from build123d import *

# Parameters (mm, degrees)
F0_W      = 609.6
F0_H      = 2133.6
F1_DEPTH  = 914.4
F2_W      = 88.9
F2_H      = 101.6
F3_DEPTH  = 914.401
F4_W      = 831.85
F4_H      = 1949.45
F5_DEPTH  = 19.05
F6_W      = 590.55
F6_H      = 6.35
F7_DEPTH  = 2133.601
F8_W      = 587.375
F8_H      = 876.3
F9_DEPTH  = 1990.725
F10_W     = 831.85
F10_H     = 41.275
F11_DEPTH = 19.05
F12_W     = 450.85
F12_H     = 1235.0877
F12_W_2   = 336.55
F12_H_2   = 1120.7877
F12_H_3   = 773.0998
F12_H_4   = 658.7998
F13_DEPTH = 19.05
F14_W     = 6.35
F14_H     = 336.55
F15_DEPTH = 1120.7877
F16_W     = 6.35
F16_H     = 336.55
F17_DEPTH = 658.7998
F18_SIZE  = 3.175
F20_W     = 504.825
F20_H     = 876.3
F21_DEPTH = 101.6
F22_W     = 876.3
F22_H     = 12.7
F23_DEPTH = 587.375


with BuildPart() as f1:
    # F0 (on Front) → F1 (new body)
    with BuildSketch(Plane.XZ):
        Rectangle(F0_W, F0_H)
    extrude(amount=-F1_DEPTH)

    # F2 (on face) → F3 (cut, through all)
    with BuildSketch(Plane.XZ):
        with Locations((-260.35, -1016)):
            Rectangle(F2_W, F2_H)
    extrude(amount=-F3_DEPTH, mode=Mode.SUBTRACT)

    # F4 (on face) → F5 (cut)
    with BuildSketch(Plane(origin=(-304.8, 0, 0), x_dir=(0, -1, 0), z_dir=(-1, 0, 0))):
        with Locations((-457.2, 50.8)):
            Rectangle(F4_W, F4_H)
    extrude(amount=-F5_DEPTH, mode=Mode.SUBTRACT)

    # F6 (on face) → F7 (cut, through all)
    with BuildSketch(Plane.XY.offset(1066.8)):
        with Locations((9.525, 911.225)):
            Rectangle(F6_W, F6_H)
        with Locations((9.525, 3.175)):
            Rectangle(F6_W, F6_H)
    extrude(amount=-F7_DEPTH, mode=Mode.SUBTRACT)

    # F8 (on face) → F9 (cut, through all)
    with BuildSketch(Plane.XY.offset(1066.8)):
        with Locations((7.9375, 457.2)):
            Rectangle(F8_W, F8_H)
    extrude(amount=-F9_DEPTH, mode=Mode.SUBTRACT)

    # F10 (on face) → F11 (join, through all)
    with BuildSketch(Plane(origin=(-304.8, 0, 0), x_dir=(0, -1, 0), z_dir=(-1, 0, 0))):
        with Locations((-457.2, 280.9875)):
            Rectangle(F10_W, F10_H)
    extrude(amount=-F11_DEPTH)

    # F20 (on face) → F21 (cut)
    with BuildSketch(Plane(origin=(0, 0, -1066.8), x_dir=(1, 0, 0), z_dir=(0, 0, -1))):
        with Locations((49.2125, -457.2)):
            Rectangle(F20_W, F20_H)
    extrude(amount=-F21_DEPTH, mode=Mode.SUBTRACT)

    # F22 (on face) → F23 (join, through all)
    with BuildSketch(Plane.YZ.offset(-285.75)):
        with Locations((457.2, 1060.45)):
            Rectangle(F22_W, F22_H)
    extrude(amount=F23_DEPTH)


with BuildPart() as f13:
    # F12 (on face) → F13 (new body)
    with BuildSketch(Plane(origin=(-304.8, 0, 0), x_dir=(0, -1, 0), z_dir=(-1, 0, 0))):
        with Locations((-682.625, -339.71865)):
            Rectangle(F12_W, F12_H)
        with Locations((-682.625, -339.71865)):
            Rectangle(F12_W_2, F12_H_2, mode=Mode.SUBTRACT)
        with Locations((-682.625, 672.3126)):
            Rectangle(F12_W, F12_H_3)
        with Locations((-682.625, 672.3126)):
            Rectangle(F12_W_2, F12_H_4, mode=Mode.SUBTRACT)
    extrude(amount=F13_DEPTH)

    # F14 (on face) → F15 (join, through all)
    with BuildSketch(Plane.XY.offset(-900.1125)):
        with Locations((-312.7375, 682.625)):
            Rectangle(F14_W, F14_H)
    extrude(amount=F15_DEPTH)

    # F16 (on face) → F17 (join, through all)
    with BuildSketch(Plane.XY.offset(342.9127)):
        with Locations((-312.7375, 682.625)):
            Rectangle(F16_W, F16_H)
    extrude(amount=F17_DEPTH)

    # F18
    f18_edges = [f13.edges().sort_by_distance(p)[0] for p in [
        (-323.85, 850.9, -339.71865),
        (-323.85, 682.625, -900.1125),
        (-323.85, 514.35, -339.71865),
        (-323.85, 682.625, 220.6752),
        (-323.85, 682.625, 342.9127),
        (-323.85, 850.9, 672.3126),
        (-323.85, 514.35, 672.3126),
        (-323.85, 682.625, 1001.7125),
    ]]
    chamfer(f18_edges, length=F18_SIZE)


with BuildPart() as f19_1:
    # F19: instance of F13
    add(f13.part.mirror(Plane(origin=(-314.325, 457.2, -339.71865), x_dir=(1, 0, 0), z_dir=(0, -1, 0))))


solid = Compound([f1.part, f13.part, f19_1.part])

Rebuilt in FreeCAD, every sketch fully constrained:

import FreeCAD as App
import Part
import Sketcher
from FreeCAD import Vector
Q = App.Units.Quantity


def edges_at(feature, points):
    """Names of the edges that pass closest to the given points."""
    edges = feature.Shape.Edges
    near = lambda p: min(range(len(edges)), key=lambda i: edges[i].distToShape(Part.Vertex(*p))[0])
    return sorted({f"Edge{near(p) + 1}" for p in points})

doc = App.newDocument("Part")
body = doc.addObject("PartDesign::Body", "Body")

# Sketch on XZ plane
sketch1 = doc.addObject("Sketcher::SketchObject", "Sketch")
body.addObject(sketch1)
sketch1.AttachmentSupport = (doc.XZ_Plane, [""])
sketch1.MapMode = "FlatFace"
sketch1.addGeometry([
    Part.LineSegment(Vector(-304.8, 1066.8, 0), Vector(-304.8, -1066.8, 0)),
    Part.LineSegment(Vector(-304.8, -1066.8, 0), Vector(304.8, -1066.8, 0)),
    Part.LineSegment(Vector(304.8, -1066.8, 0), Vector(304.8, 1066.8, 0)),
    Part.LineSegment(Vector(304.8, 1066.8, 0), Vector(-304.8, 1066.8, 0)),
], False)
sketch1.addConstraint([
    Sketcher.Constraint("Coincident", 0, 2, 1, 1),
    Sketcher.Constraint("Coincident", 1, 2, 2, 1),
    Sketcher.Constraint("Coincident", 2, 2, 3, 1),
    Sketcher.Constraint("Coincident", 3, 2, 0, 1),
    Sketcher.Constraint("Vertical", 0),
    Sketcher.Constraint("Horizontal", 1),
    Sketcher.Constraint("Vertical", 2),
    Sketcher.Constraint("Horizontal", 3),
    Sketcher.Constraint("Symmetric", 0, 2, 2, 2, -1, 1),
    Sketcher.Constraint("DistanceX", 1, 1, 1, 2, Q("24 in")),
    Sketcher.Constraint("DistanceY", 0, 2, 0, 1, Q("84 in")),
])
pad1 = doc.addObject("PartDesign::Pad", "Pad")
body.addObject(pad1)
pad1.Profile = sketch1
pad1.Length = Q("36 in")
pad1.Reversed = True

# Sketch on XZ plane
sketch2 = doc.addObject("Sketcher::SketchObject", "Sketch001")
body.addObject(sketch2)
sketch2.AttachmentSupport = (doc.XZ_Plane, [""])
sketch2.MapMode = "FlatFace"
sketch2.addGeometry([
    Part.LineSegment(Vector(-304.8, -965.2, 0), Vector(-304.8, -1066.8, 0)),
    Part.LineSegment(Vector(-304.8, -1066.8, 0), Vector(-215.9, -1066.8, 0)),
    Part.LineSegment(Vector(-215.9, -1066.8, 0), Vector(-215.9, -965.2, 0)),
    Part.LineSegment(Vector(-215.9, -965.2, 0), Vector(-304.8, -965.2, 0)),
], False)
sketch2.addConstraint([
    Sketcher.Constraint("Coincident", 0, 2, 1, 1),
    Sketcher.Constraint("Coincident", 1, 2, 2, 1),
    Sketcher.Constraint("Coincident", 2, 2, 3, 1),
    Sketcher.Constraint("Coincident", 3, 2, 0, 1),
    Sketcher.Constraint("Vertical", 0),
    Sketcher.Constraint("Horizontal", 1),
    Sketcher.Constraint("Vertical", 2),
    Sketcher.Constraint("Horizontal", 3),
    Sketcher.Constraint("DistanceY", 0, 2, 0, 1, Q("4 in")),
    Sketcher.Constraint("DistanceX", 1, 1, 1, 2, Q("3.5 in")),
    Sketcher.Constraint("DistanceX", 0, 2, -1, 1, Q("12 in")),
    Sketcher.Constraint("DistanceY", 0, 2, -1, 1, Q("42 in")),
])
pocket1 = doc.addObject("PartDesign::Pocket", "Pocket")
body.addObject(pocket1)
pocket1.Profile = sketch2
pocket1.Type = "ThroughAll"

# Sketch on YZ plane
sketch3 = doc.addObject("Sketcher::SketchObject", "Sketch002")
body.addObject(sketch3)
sketch3.AttachmentSupport = (doc.YZ_Plane, [""])
sketch3.MapMode = "FlatFace"
sketch3.AttachmentOffset = App.Placement(Vector(0, 0, -12 * 25.4), App.Rotation())
sketch3.addGeometry([
    Part.LineSegment(Vector(873.125, 1025.525, 0), Vector(873.125, -923.925, 0)),
    Part.LineSegment(Vector(873.125, -923.925, 0), Vector(41.275, -923.925, 0)),
    Part.LineSegment(Vector(41.275, -923.925, 0), Vector(41.275, 1025.525, 0)),
    Part.LineSegment(Vector(41.275, 1025.525, 0), Vector(873.125, 1025.525, 0)),
], False)
sketch3.addConstraint([
    Sketcher.Constraint("Coincident", 0, 2, 1, 1),
    Sketcher.Constraint("Coincident", 1, 2, 2, 1),
    Sketcher.Constraint("Coincident", 2, 2, 3, 1),
    Sketcher.Constraint("Coincident", 3, 2, 0, 1),
    Sketcher.Constraint("Vertical", 0),
    Sketcher.Constraint("Horizontal", 1),
    Sketcher.Constraint("Vertical", 2),
    Sketcher.Constraint("Horizontal", 3),
    Sketcher.Constraint("DistanceX", 1, 2, 1, 1, Q("32.75 in")),
    Sketcher.Constraint("DistanceY", 0, 2, 0, 1, Q("76.75 in")),
    Sketcher.Constraint("DistanceX", -1, 1, 0, 2, Q("34.375 in")),
    Sketcher.Constraint("DistanceY", 0, 2, -1, 1, Q("36.375 in")),
])
pocket2 = doc.addObject("PartDesign::Pocket", "Pocket001")
body.addObject(pocket2)
pocket2.Profile = sketch3
pocket2.Length = Q("0.75 in")
pocket2.Reversed = True

# Sketch on XY plane
sketch4 = doc.addObject("Sketcher::SketchObject", "Sketch003")
body.addObject(sketch4)
sketch4.AttachmentSupport = (doc.XY_Plane, [""])
sketch4.MapMode = "FlatFace"
sketch4.AttachmentOffset = App.Placement(Vector(0, 0, 42 * 25.4), App.Rotation())
sketch4.addGeometry([
    Part.LineSegment(Vector(-285.75, 914.4, 0), Vector(-285.75, 908.05, 0)),  # 0
    Part.LineSegment(Vector(-285.75, 908.05, 0), Vector(304.8, 908.05, 0)),  # 1
    Part.LineSegment(Vector(304.8, 908.05, 0), Vector(304.8, 914.4, 0)),  # 2
    Part.LineSegment(Vector(304.8, 914.4, 0), Vector(-285.75, 914.4, 0)),  # 3
    Part.LineSegment(Vector(-285.75, 6.35, 0), Vector(-285.75, 0, 0)),  # 4
    Part.LineSegment(Vector(-285.75, 0, 0), Vector(304.8, 0, 0)),  # 5
    Part.LineSegment(Vector(304.8, 0, 0), Vector(304.8, 6.35, 0)),  # 6
    Part.LineSegment(Vector(304.8, 6.35, 0), Vector(-285.75, 6.35, 0)),  # 7
], False)
sketch4.addConstraint([
    Sketcher.Constraint("Coincident", 0, 2, 1, 1),
    Sketcher.Constraint("Coincident", 1, 2, 2, 1),
    Sketcher.Constraint("Coincident", 2, 2, 3, 1),
    Sketcher.Constraint("Coincident", 3, 2, 0, 1),
    Sketcher.Constraint("Coincident", 4, 2, 5, 1),
    Sketcher.Constraint("Coincident", 5, 2, 6, 1),
    Sketcher.Constraint("Coincident", 6, 2, 7, 1),
    Sketcher.Constraint("Coincident", 7, 2, 4, 1),
    Sketcher.Constraint("Vertical", 0),
    Sketcher.Constraint("Horizontal", 1),
    Sketcher.Constraint("Vertical", 2),
    Sketcher.Constraint("Horizontal", 3),
    Sketcher.Constraint("Vertical", 4),
    Sketcher.Constraint("Horizontal", 5),
    Sketcher.Constraint("Vertical", 6),
    Sketcher.Constraint("Horizontal", 7),
    Sketcher.Constraint("PointOnObject", 4, 2, -1),
    Sketcher.Constraint("Vertical", 3, 2, 4, 2),
    Sketcher.Constraint("Vertical", 2, 2, 5, 2),
    Sketcher.Constraint("Equal", 2, 4),
    Sketcher.Constraint("DistanceX", -1, 1, 1, 2, Q("12 in")),
    Sketcher.Constraint("DistanceY", -1, 1, 2, 2, Q("36 in")),
    Sketcher.Constraint("DistanceX", 1, 1, 1, 2, Q("23.25 in")),
    Sketcher.Constraint("DistanceY", 0, 2, 0, 1, Q("0.25 in")),
])
pocket3 = doc.addObject("PartDesign::Pocket", "Pocket002")
body.addObject(pocket3)
pocket3.Profile = sketch4
pocket3.Type = "ThroughAll"

# Sketch on XY plane
sketch5 = doc.addObject("Sketcher::SketchObject", "Sketch004")
body.addObject(sketch5)
sketch5.AttachmentSupport = (doc.XY_Plane, [""])
sketch5.MapMode = "FlatFace"
sketch5.AttachmentOffset = App.Placement(Vector(0, 0, 42 * 25.4), App.Rotation())
sketch5.addGeometry([
    Part.LineSegment(Vector(-285.75, 895.35, 0), Vector(-285.75, 19.05, 0)),
    Part.LineSegment(Vector(-285.75, 19.05, 0), Vector(301.625, 19.05, 0)),
    Part.LineSegment(Vector(301.625, 19.05, 0), Vector(301.625, 895.35, 0)),
    Part.LineSegment(Vector(301.625, 895.35, 0), Vector(-285.75, 895.35, 0)),
], False)
sketch5.addConstraint([
    Sketcher.Constraint("Coincident", 0, 2, 1, 1),
    Sketcher.Constraint("Coincident", 1, 2, 2, 1),
    Sketcher.Constraint("Coincident", 2, 2, 3, 1),
    Sketcher.Constraint("Coincident", 3, 2, 0, 1),
    Sketcher.Constraint("Vertical", 0),
    Sketcher.Constraint("Horizontal", 1),
    Sketcher.Constraint("Vertical", 2),
    Sketcher.Constraint("Horizontal", 3),
    Sketcher.Constraint("DistanceY", 0, 2, 0, 1, Q("34.5 in")),
    Sketcher.Constraint("DistanceX", 1, 1, 1, 2, Q("23.125 in")),
    Sketcher.Constraint("DistanceX", 0, 2, -1, 1, Q("11.25 in")),
    Sketcher.Constraint("DistanceY", -1, 1, 0, 2, Q("0.75 in")),
])
pocket4 = doc.addObject("PartDesign::Pocket", "Pocket003")
body.addObject(pocket4)
pocket4.Profile = sketch5
pocket4.Length = Q("78.375 in")

# Sketch on YZ plane
sketch6 = doc.addObject("Sketcher::SketchObject", "Sketch005")
body.addObject(sketch6)
sketch6.AttachmentSupport = (doc.YZ_Plane, [""])
sketch6.MapMode = "FlatFace"
sketch6.AttachmentOffset = App.Placement(Vector(0, 0, -12 * 25.4), App.Rotation())
sketch6.addGeometry([
    Part.LineSegment(Vector(873.125, 301.625, 0), Vector(873.125, 260.35, 0)),
    Part.LineSegment(Vector(873.125, 260.35, 0), Vector(41.275, 260.35, 0)),
    Part.LineSegment(Vector(41.275, 260.35, 0), Vector(41.275, 301.625, 0)),
    Part.LineSegment(Vector(41.275, 301.625, 0), Vector(873.125, 301.625, 0)),
], False)
sketch6.addConstraint([
    Sketcher.Constraint("Coincident", 0, 2, 1, 1),
    Sketcher.Constraint("Coincident", 1, 2, 2, 1),
    Sketcher.Constraint("Coincident", 2, 2, 3, 1),
    Sketcher.Constraint("Coincident", 3, 2, 0, 1),
    Sketcher.Constraint("Vertical", 0),
    Sketcher.Constraint("Horizontal", 1),
    Sketcher.Constraint("Vertical", 2),
    Sketcher.Constraint("Horizontal", 3),
    Sketcher.Constraint("DistanceX", 1, 2, 1, 1, Q("32.75 in")),
    Sketcher.Constraint("DistanceY", 0, 2, 0, 1, Q("1.625 in")),
    Sketcher.Constraint("DistanceY", -1, 1, 0, 2, Q("10.25 in")),
    Sketcher.Constraint("DistanceX", -1, 1, 0, 2, Q("34.375 in")),
])
pad2 = doc.addObject("PartDesign::Pad", "Pad001")
body.addObject(pad2)
pad2.Profile = sketch6
pad2.Length = Q("0.75 in")

# Sketch on XY plane
sketch7 = doc.addObject("Sketcher::SketchObject", "Sketch006")
body.addObject(sketch7)
sketch7.AttachmentSupport = (doc.XY_Plane, [""])
sketch7.MapMode = "FlatFace"
sketch7.AttachmentOffset = App.Placement(Vector(0, 0, -42 * 25.4), App.Rotation())
sketch7.addGeometry([
    Part.LineSegment(Vector(-203.2, 19.05, 0), Vector(-203.2, 895.35, 0)),
    Part.LineSegment(Vector(-203.2, 895.35, 0), Vector(301.625, 895.35, 0)),
    Part.LineSegment(Vector(301.625, 895.35, 0), Vector(301.625, 19.05, 0)),
    Part.LineSegment(Vector(301.625, 19.05, 0), Vector(-203.2, 19.05, 0)),
], False)
sketch7.addConstraint([
    Sketcher.Constraint("Coincident", 0, 2, 1, 1),
    Sketcher.Constraint("Coincident", 1, 2, 2, 1),
    Sketcher.Constraint("Coincident", 2, 2, 3, 1),
    Sketcher.Constraint("Coincident", 3, 2, 0, 1),
    Sketcher.Constraint("Vertical", 0),
    Sketcher.Constraint("Horizontal", 1),
    Sketcher.Constraint("Vertical", 2),
    Sketcher.Constraint("Horizontal", 3),
    Sketcher.Constraint("DistanceY", 0, 1, 0, 2, Q("34.5 in")),
    Sketcher.Constraint("DistanceX", 0, 2, -1, 1, Q("8 in")),
    Sketcher.Constraint("DistanceX", 1, 1, 1, 2, Q("19.875 in")),
    Sketcher.Constraint("DistanceY", -1, 1, 0, 2, Q("35.25 in")),
])
pocket5 = doc.addObject("PartDesign::Pocket", "Pocket004")
body.addObject(pocket5)
pocket5.Profile = sketch7
pocket5.Length = Q("4 in")
pocket5.Reversed = True

# Sketch on YZ plane
sketch8 = doc.addObject("Sketcher::SketchObject", "Sketch007")
body.addObject(sketch8)
sketch8.AttachmentSupport = (doc.YZ_Plane, [""])
sketch8.MapMode = "FlatFace"
sketch8.AttachmentOffset = App.Placement(Vector(0, 0, -11.25 * 25.4), App.Rotation())
sketch8.addGeometry([
    Part.LineSegment(Vector(19.05, 1066.8, 0), Vector(19.05, 1054.1, 0)),
    Part.LineSegment(Vector(19.05, 1054.1, 0), Vector(895.35, 1054.1, 0)),
    Part.LineSegment(Vector(895.35, 1054.1, 0), Vector(895.35, 1066.8, 0)),
    Part.LineSegment(Vector(895.35, 1066.8, 0), Vector(19.05, 1066.8, 0)),
], False)
sketch8.addConstraint([
    Sketcher.Constraint("Coincident", 0, 2, 1, 1),
    Sketcher.Constraint("Coincident", 1, 2, 2, 1),
    Sketcher.Constraint("Coincident", 2, 2, 3, 1),
    Sketcher.Constraint("Coincident", 3, 2, 0, 1),
    Sketcher.Constraint("Vertical", 0),
    Sketcher.Constraint("Horizontal", 1),
    Sketcher.Constraint("Vertical", 2),
    Sketcher.Constraint("Horizontal", 3),
    Sketcher.Constraint("DistanceX", 1, 1, 1, 2, Q("34.5 in")),
    Sketcher.Constraint("DistanceY", 0, 2, 0, 1, Q("0.5 in")),
    Sketcher.Constraint("DistanceY", -1, 1, 2, 2, Q("42 in")),
    Sketcher.Constraint("DistanceX", -1, 1, 0, 2, Q("0.75 in")),
])
pad3 = doc.addObject("PartDesign::Pad", "Pad002")
body.addObject(pad3)
pad3.Profile = sketch8
pad3.Type = "UpToLast"
body2 = doc.addObject("PartDesign::Body", "Body001")
body2.AllowCompound = True

# Sketch on YZ plane
sketch9 = doc.addObject("Sketcher::SketchObject", "Sketch008")
body2.addObject(sketch9)
sketch9.AttachmentSupport = (doc.getObject("YZ_Plane001"), [""])
sketch9.MapMode = "FlatFace"
sketch9.AttachmentOffset = App.Placement(Vector(0, 0, -12 * 25.4), App.Rotation())
sketch9.addGeometry([
    Part.LineSegment(Vector(908.05, 277.8252, 0), Vector(908.05, -957.2625, 0)),  # 0
    Part.LineSegment(Vector(908.05, -957.2625, 0), Vector(457.2, -957.2625, 0)),  # 1
    Part.LineSegment(Vector(457.2, -957.2625, 0), Vector(457.2, 277.8252, 0)),  # 2
    Part.LineSegment(Vector(457.2, 277.8252, 0), Vector(908.05, 277.8252, 0)),  # 3
    Part.LineSegment(Vector(514.35, -900.1125, 0), Vector(850.9, -900.1125, 0)),  # 4
    Part.LineSegment(Vector(850.9, -900.1125, 0), Vector(850.9, 220.6752, 0)),  # 5
    Part.LineSegment(Vector(850.9, 220.6752, 0), Vector(514.35, 220.6752, 0)),  # 6
    Part.LineSegment(Vector(514.35, 220.6752, 0), Vector(514.35, -900.1125, 0)),  # 7
    Part.LineSegment(Vector(908.05, 1058.8625, 0), Vector(908.05, 285.7627, 0)),  # 8
    Part.LineSegment(Vector(908.05, 285.7627, 0), Vector(457.2, 285.7627, 0)),  # 9
    Part.LineSegment(Vector(457.2, 285.7627, 0), Vector(457.2, 1058.8625, 0)),  # 10
    Part.LineSegment(Vector(457.2, 1058.8625, 0), Vector(908.05, 1058.8625, 0)),  # 11
    Part.LineSegment(Vector(514.35, 342.9127, 0), Vector(850.9, 342.9127, 0)),  # 12
    Part.LineSegment(Vector(850.9, 342.9127, 0), Vector(850.9, 1001.7125, 0)),  # 13
    Part.LineSegment(Vector(850.9, 1001.7125, 0), Vector(514.35, 1001.7125, 0)),  # 14
    Part.LineSegment(Vector(514.35, 1001.7125, 0), Vector(514.35, 342.9127, 0)),  # 15
], False)
sketch9.addConstraint([
    Sketcher.Constraint("Coincident", 0, 2, 1, 1),
    Sketcher.Constraint("Coincident", 1, 2, 2, 1),
    Sketcher.Constraint("Coincident", 2, 2, 3, 1),
    Sketcher.Constraint("Coincident", 3, 2, 0, 1),
    Sketcher.Constraint("Coincident", 4, 2, 5, 1),
    Sketcher.Constraint("Coincident", 5, 2, 6, 1),
    Sketcher.Constraint("Coincident", 6, 2, 7, 1),
    Sketcher.Constraint("Coincident", 7, 2, 4, 1),
    Sketcher.Constraint("Coincident", 8, 2, 9, 1),
    Sketcher.Constraint("Coincident", 9, 2, 10, 1),
    Sketcher.Constraint("Coincident", 10, 2, 11, 1),
    Sketcher.Constraint("Coincident", 11, 2, 8, 1),
    Sketcher.Constraint("Coincident", 12, 2, 13, 1),
    Sketcher.Constraint("Coincident", 13, 2, 14, 1),
    Sketcher.Constraint("Coincident", 14, 2, 15, 1),
    Sketcher.Constraint("Coincident", 15, 2, 12, 1),
    Sketcher.Constraint("Vertical", 0),
    Sketcher.Constraint("Horizontal", 1),
    Sketcher.Constraint("Vertical", 2),
    Sketcher.Constraint("Horizontal", 3),
    Sketcher.Constraint("Horizontal", 4),
    Sketcher.Constraint("Vertical", 5),
    Sketcher.Constraint("Horizontal", 6),
    Sketcher.Constraint("Vertical", 7),
    Sketcher.Constraint("Vertical", 8),
    Sketcher.Constraint("Horizontal", 9),
    Sketcher.Constraint("Vertical", 10),
    Sketcher.Constraint("Horizontal", 11),
    Sketcher.Constraint("Horizontal", 12),
    Sketcher.Constraint("Vertical", 13),
    Sketcher.Constraint("Horizontal", 14),
    Sketcher.Constraint("Vertical", 15),
    Sketcher.Constraint("Vertical", 3, 2, 8, 2),
    Sketcher.Constraint("Vertical", 2, 2, 9, 2),
    Sketcher.Constraint("Vertical", 5, 2, 12, 2),
    Sketcher.Constraint("Vertical", 7, 2, 14, 2),
    Sketcher.Constraint("DistanceX", -1, 1, 1, 2, Q("18 in")),
    Sketcher.Constraint("DistanceX", 1, 2, 1, 1, Q("17.75 in")),
    Sketcher.Constraint("DistanceX", 4, 1, 4, 2, Q("13.25 in")),
    Sketcher.Constraint("DistanceX", -1, 1, 4, 2, Q("33.5 in")),
    Sketcher.Constraint("DistanceY", 8, 2, 8, 1, Q("30.437 in")),
    Sketcher.Constraint("DistanceY", 13, 1, 13, 2, Q("25.937 in")),
    Sketcher.Constraint("DistanceY", 0, 2, 4, 2, Q("2.25 in")),
    Sketcher.Constraint("DistanceY", 5, 2, 3, 2, Q("2.25 in")),
    Sketcher.Constraint("DistanceY", 8, 2, 12, 2, Q("2.25 in")),
    Sketcher.Constraint("DistanceY", 0, 2, 0, 1, Q("48.6255 in")),
    Sketcher.Constraint("DistanceY", 0, 2, -1, 1, Q("37.6875 in")),
    Sketcher.Constraint("DistanceY", -1, 1, 10, 2, Q("41.6875 in")),
])
pad4 = doc.addObject("PartDesign::Pad", "Pad003")
body2.addObject(pad4)
pad4.Profile = sketch9
pad4.Length = Q("0.75 in")
pad4.Reversed = True

# Sketch on XY plane
sketch10 = doc.addObject("Sketcher::SketchObject", "Sketch009")
body2.addObject(sketch10)
sketch10.AttachmentSupport = (doc.getObject("XY_Plane001"), [""])
sketch10.MapMode = "FlatFace"
sketch10.AttachmentOffset = App.Placement(Vector(0, 0, -35.4375 * 25.4), App.Rotation())
sketch10.addGeometry([
    Part.LineSegment(Vector(-315.9125, 850.9, 0), Vector(-315.9125, 514.35, 0)),
    Part.LineSegment(Vector(-315.9125, 514.35, 0), Vector(-309.5625, 514.35, 0)),
    Part.LineSegment(Vector(-309.5625, 514.35, 0), Vector(-309.5625, 850.9, 0)),
    Part.LineSegment(Vector(-309.5625, 850.9, 0), Vector(-315.9125, 850.9, 0)),
], False)
sketch10.addConstraint([
    Sketcher.Constraint("Coincident", 0, 2, 1, 1),
    Sketcher.Constraint("Coincident", 1, 2, 2, 1),
    Sketcher.Constraint("Coincident", 2, 2, 3, 1),
    Sketcher.Constraint("Coincident", 3, 2, 0, 1),
    Sketcher.Constraint("Vertical", 0),
    Sketcher.Constraint("Horizontal", 1),
    Sketcher.Constraint("Vertical", 2),
    Sketcher.Constraint("Horizontal", 3),
    Sketcher.Constraint("DistanceX", 1, 1, 1, 2, Q("0.25 in")),
    Sketcher.Constraint("DistanceY", 0, 2, 0, 1, Q("13.25 in")),
    Sketcher.Constraint("DistanceY", -1, 1, 2, 2, Q("33.5 in")),
    Sketcher.Constraint("DistanceX", 0, 2, -1, 1, Q("12.4375 in")),
])
pad5 = doc.addObject("PartDesign::Pad", "Pad004")
body2.addObject(pad5)
pad5.Profile = sketch10
pad5.Length = Q("44.1255 in")

# Sketch on XY plane
sketch11 = doc.addObject("Sketcher::SketchObject", "Sketch010")
body2.addObject(sketch11)
sketch11.AttachmentSupport = (doc.getObject("XY_Plane001"), [""])
sketch11.MapMode = "FlatFace"
sketch11.AttachmentOffset = App.Placement(Vector(0, 0, 13.5005 * 25.4), App.Rotation())
sketch11.addGeometry([
    Part.LineSegment(Vector(-315.9125, 850.9, 0), Vector(-315.9125, 514.35, 0)),
    Part.LineSegment(Vector(-315.9125, 514.35, 0), Vector(-309.5625, 514.35, 0)),
    Part.LineSegment(Vector(-309.5625, 514.35, 0), Vector(-309.5625, 850.9, 0)),
    Part.LineSegment(Vector(-309.5625, 850.9, 0), Vector(-315.9125, 850.9, 0)),
], False)
sketch11.addConstraint([
    Sketcher.Constraint("Coincident", 0, 2, 1, 1),
    Sketcher.Constraint("Coincident", 1, 2, 2, 1),
    Sketcher.Constraint("Coincident", 2, 2, 3, 1),
    Sketcher.Constraint("Coincident", 3, 2, 0, 1),
    Sketcher.Constraint("Vertical", 0),
    Sketcher.Constraint("Horizontal", 1),
    Sketcher.Constraint("Vertical", 2),
    Sketcher.Constraint("Horizontal", 3),
    Sketcher.Constraint("DistanceX", 1, 1, 1, 2, Q("0.25 in")),
    Sketcher.Constraint("DistanceY", 0, 2, 0, 1, Q("13.25 in")),
    Sketcher.Constraint("DistanceY", -1, 1, 2, 2, Q("33.5 in")),
    Sketcher.Constraint("DistanceX", 0, 2, -1, 1, Q("12.4375 in")),
])
pad6 = doc.addObject("PartDesign::Pad", "Pad005")
body2.addObject(pad6)
pad6.Profile = sketch11
pad6.Type = "UpToLast"
doc.recompute()

chamfer = doc.addObject("PartDesign::Chamfer", "Chamfer")
body2.addObject(chamfer)
chamfer.Base = (pad6, edges_at(pad6, [
    (-323.85, 850.9, -339.719),
    (-323.85, 682.625, -900.112),
    (-323.85, 514.35, -339.719),
    (-323.85, 682.625, 220.675),
    (-323.85, 682.625, 342.913),
    (-323.85, 850.9, 672.313),
    (-323.85, 514.35, 672.313),
    (-323.85, 682.625, 1001.712),
]))
chamfer.Size = Q("0.125 in")
body3 = doc.addObject("PartDesign::Body", "Body002")
body3.AllowCompound = True
doc.recompute()

mirroring = doc.addObject("Part::Mirroring", "Mirroring")
mirroring.Source = body2
mirroring.Base = Vector(-314.325, 457.2, -339.71865)
mirroring.Normal = Vector(0, -1, 0)
body3.BaseFeature = mirroring
doc.recompute()
mirroring.Visibility = False

doc.recompute()
